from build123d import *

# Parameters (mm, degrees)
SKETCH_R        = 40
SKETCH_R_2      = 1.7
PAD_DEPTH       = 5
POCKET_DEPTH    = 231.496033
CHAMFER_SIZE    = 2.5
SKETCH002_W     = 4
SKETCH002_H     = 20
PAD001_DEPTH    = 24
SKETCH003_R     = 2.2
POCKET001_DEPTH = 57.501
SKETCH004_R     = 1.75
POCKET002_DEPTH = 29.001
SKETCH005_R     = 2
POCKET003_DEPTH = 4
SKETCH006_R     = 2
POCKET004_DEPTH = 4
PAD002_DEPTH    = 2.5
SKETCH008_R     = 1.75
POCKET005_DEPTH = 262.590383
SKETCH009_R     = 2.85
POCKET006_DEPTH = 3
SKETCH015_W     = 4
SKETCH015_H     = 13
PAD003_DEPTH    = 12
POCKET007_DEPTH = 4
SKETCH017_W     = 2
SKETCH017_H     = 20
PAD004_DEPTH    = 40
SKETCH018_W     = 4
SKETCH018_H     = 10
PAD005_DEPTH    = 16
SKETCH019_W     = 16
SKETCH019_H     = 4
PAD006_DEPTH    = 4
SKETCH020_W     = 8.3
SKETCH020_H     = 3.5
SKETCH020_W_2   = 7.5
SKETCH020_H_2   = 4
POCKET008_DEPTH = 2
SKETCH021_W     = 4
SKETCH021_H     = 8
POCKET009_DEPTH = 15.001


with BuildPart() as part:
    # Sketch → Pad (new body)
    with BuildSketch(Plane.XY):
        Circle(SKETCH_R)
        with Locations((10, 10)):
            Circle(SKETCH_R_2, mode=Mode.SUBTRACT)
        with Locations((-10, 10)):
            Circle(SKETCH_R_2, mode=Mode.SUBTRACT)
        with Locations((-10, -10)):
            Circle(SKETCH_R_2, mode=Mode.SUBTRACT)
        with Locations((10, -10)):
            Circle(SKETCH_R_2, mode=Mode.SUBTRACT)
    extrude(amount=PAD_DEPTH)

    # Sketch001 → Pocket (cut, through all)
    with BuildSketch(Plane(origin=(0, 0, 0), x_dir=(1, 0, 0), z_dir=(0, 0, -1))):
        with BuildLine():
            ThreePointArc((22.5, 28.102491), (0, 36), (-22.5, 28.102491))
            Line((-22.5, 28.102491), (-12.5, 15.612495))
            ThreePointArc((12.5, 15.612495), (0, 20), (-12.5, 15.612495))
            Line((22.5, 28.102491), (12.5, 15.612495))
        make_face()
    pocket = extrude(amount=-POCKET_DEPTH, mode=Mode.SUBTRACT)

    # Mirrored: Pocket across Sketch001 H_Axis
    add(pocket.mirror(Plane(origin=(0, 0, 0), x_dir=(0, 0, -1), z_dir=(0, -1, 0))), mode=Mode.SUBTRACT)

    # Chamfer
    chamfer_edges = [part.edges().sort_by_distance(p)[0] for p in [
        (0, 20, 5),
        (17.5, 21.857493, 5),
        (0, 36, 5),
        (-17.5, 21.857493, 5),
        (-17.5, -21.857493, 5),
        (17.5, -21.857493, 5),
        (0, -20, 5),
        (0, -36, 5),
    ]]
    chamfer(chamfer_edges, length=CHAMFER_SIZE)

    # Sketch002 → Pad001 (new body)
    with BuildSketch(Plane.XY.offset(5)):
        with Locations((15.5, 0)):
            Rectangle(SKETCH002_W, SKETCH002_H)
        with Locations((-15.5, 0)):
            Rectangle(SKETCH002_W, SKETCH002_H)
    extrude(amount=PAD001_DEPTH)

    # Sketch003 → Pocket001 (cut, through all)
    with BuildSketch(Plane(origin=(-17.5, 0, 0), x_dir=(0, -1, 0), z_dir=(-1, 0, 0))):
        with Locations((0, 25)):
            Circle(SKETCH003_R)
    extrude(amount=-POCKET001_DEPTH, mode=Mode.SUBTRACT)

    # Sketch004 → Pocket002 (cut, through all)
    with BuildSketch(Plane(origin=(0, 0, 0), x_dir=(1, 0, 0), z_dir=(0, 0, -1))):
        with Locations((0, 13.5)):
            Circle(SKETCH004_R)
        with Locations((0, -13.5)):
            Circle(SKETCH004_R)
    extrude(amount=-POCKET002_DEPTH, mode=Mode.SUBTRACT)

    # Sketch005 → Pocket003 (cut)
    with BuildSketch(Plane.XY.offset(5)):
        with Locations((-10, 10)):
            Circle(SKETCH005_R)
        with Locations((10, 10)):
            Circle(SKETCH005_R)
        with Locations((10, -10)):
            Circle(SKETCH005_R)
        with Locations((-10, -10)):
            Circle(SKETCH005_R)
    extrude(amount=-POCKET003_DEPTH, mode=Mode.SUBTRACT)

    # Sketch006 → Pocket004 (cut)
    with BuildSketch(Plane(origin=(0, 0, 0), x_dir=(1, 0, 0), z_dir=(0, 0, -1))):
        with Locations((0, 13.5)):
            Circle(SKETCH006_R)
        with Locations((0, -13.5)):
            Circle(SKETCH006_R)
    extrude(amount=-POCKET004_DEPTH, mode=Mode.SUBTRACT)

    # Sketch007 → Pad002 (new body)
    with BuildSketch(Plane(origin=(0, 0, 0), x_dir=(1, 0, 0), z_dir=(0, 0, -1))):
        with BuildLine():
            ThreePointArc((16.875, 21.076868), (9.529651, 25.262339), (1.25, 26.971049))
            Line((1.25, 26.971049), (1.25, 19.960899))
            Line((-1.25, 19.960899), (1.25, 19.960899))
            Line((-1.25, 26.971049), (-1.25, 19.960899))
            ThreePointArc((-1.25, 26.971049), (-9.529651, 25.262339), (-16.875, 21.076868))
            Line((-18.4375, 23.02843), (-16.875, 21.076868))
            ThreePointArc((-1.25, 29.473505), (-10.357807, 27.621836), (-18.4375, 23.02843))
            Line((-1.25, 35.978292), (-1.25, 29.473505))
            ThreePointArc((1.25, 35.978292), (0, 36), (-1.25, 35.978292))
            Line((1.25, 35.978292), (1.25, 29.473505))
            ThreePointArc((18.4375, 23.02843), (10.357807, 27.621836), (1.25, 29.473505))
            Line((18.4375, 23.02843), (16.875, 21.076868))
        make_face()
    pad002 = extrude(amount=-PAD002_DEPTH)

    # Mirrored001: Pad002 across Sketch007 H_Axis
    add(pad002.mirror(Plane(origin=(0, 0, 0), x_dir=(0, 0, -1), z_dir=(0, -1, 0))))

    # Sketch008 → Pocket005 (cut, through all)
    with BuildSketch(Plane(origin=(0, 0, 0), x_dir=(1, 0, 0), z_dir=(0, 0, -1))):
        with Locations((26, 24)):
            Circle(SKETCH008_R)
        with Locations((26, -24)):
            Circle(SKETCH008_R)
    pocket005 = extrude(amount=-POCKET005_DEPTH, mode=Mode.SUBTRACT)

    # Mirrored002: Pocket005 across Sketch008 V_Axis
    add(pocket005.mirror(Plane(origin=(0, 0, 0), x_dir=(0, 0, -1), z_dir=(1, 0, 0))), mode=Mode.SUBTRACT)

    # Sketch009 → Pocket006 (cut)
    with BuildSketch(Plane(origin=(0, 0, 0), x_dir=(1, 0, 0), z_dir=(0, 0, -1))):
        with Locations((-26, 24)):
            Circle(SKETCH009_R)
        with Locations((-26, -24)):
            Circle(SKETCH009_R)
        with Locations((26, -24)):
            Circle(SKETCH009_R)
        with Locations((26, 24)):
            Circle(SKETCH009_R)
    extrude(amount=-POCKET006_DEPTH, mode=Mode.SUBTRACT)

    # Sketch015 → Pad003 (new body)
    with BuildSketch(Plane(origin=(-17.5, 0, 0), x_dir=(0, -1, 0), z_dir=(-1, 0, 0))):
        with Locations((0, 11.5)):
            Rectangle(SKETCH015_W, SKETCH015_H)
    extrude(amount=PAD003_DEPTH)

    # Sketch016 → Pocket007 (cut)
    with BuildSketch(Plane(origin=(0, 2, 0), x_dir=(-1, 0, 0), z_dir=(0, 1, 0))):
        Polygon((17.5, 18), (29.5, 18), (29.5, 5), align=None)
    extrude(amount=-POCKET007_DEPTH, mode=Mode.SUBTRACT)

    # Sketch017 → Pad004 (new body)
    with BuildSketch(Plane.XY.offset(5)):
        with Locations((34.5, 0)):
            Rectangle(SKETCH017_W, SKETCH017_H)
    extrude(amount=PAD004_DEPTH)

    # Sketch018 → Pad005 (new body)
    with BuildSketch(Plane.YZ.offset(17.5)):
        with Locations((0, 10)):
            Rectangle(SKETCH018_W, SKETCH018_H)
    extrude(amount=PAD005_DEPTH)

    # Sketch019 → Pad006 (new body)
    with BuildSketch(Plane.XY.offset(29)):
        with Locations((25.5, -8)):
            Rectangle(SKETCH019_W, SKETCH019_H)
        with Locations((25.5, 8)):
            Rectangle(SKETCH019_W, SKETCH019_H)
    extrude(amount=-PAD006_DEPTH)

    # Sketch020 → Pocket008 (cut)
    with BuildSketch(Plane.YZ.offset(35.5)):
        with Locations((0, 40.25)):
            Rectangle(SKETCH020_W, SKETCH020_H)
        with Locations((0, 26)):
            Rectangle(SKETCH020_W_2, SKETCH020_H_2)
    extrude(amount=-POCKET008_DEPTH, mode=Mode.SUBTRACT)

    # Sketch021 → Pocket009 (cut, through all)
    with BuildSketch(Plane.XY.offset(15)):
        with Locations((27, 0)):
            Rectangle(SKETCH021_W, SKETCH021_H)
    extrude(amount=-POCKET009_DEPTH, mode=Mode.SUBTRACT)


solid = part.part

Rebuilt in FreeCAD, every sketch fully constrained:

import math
import FreeCAD as App
import Part
import Sketcher
from FreeCAD import Vector
Q = App.Units.Quantity


def edges_at(feature, points):
    """Names of the edges that pass closest to the given points."""
    edges = feature.Shape.Edges
    near = lambda p: min(range(len(edges)), key=lambda i: edges[i].distToShape(Part.Vertex(*p))[0])
    return sorted({f"Edge{near(p) + 1}" for p in points})

doc = App.newDocument("Part")
body = doc.addObject("PartDesign::Body", "Body")

sketch1 = body.newObject("Sketcher::SketchObject", "Sketch")
sketch1.AttachmentSupport = (doc.getObject("XY_Plane"), [""])
sketch1.MapMode = "FlatFace"
sketch1.addGeometry([
    Part.Circle(Vector(0, 0, 0), Vector(0, 0, 1), 40),
    Part.Circle(Vector(-10, -10, 0), Vector(0, 0, 1), 1.7),
    Part.Circle(Vector(10, -10, 0), Vector(0, 0, 1), 1.7),
    Part.Circle(Vector(-10, 10, 0), Vector(0, 0, 1), 1.7),
    Part.Circle(Vector(10, 10, 0), Vector(0, 0, 1), 1.7),
], False)
sketch1.addConstraint([
    Sketcher.Constraint("Coincident", 0, 3, -1, 1),
    Sketcher.Constraint("Equal", 1, 2),
    Sketcher.Constraint("Equal", 2, 3),
    Sketcher.Constraint("Equal", 3, 4),
    Sketcher.Constraint("Symmetric", 2, 3, 3, 3, -1, 1),
    Sketcher.Constraint("Symmetric", 1, 3, 4, 3, -1, 1),
    Sketcher.Constraint("Symmetric", 1, 3, 2, 3, -2),
    Sketcher.Constraint("Diameter", 0, Q("80 mm")),
    Sketcher.Constraint("Diameter", 1, Q("3.4 mm")),
    Sketcher.Constraint("DistanceX", 1, 3, -1, 1, Q("10 mm")),
    Sketcher.Constraint("DistanceY", 1, 3, -1, 1, Q("10 mm")),
])
pad1 = body.newObject("PartDesign::Pad", "Pad")
pad1.Profile = sketch1
pad1.Length = 5

sketch2 = body.newObject("Sketcher::SketchObject", "Sketch001")
sketch2.AttachmentSupport = (doc.getObject("XY_Plane"), [""])
sketch2.MapMode = "FlatFace"
sketch2.addGeometry([
    Part.ArcOfCircle(Part.Circle(Vector(0, 0, 0), Vector(0, 0, 1), 36), math.radians(-129), math.radians(-51)),
    Part.LineSegment(Vector(-22, -28, 0), Vector(-12, -16, 0)),
    Part.ArcOfCircle(Part.Circle(Vector(0, 0, 0), Vector(0, 0, 1), 20), math.radians(-129), math.radians(-51)),
    Part.LineSegment(Vector(12, -16, 0), Vector(22, -28, 0)),
], False)
sketch2.addConstraint([
    Sketcher.Constraint("Coincident", 0, 1, 1, 1),
    Sketcher.Constraint("Coincident", 1, 2, 2, 1),
    Sketcher.Constraint("Coincident", 2, 2, 3, 1),
    Sketcher.Constraint("Coincident", 3, 2, 0, 2),
    Sketcher.Constraint("Coincident", 0, 3, -1, 1),
    Sketcher.Constraint("Coincident", 2, 3, -1, 1),
    Sketcher.Constraint("Horizontal", 1, 2, 2, 2),
    Sketcher.Constraint("Horizontal", 0, 1, 3, 2),
    Sketcher.Constraint("Radius", 0, Q("36 mm")),
    Sketcher.Constraint("Radius", 2, Q("20 mm")),
    Sketcher.Constraint("DistanceX", 0, 1, 1, 2, Q("10 mm")),
    Sketcher.Constraint("DistanceX", 1, 2, 2, 2, Q("25 mm")),
])
pocket1 = body.newObject("PartDesign::Pocket", "Pocket")
pocket1.Profile = sketch2
pocket1.Type = "ThroughAll"
pocket1.Reversed = True
doc.recompute()

mirrored = body.newObject("PartDesign::Mirrored", "Mirrored")
mirrored.Originals = [pocket1]
mirrored.MirrorPlane = (doc.getObject("XZ_Plane"), [""])
body.Tip = mirrored
doc.recompute()

chamfer = body.newObject("PartDesign::Chamfer", "Chamfer")
chamfer.Base = (mirrored, edges_at(mirrored, [
    (0, 20, 5),
    (17.5, 21.857, 5),
    (0, 36, 5),
    (-17.5, 21.857, 5),
    (-17.5, -21.857, 5),
    (17.5, -21.857, 5),
    (0, -20, 5),
    (0, -36, 5),
]))
chamfer.Size = 2.5

sketch3 = body.newObject("Sketcher::SketchObject", "Sketch002")
sketch3.AttachmentSupport = (doc.getObject("XY_Plane"), [""])
sketch3.MapMode = "FlatFace"
sketch3.AttachmentOffset = App.Placement(Vector(0, 0, 5), App.Rotation())
sketch3.addGeometry([
    Part.LineSegment(Vector(13.5, 10, 0), Vector(13.5, -10, 0)),
    Part.LineSegment(Vector(13.5, -10, 0), Vector(17.5, -10, 0)),
    Part.LineSegment(Vector(17.5, -10, 0), Vector(17.5, 10, 0)),
    Part.LineSegment(Vector(17.5, 10, 0), Vector(13.5, 10, 0)),
    Part.LineSegment(Vector(-17.5, 10, 0), Vector(-17.5, -10, 0)),
    Part.LineSegment(Vector(-17.5, -10, 0), Vector(-13.5, -10, 0)),
    Part.LineSegment(Vector(-13.5, -10, 0), Vector(-13.5, 10, 0)),
    Part.LineSegment(Vector(-13.5, 10, 0), Vector(-17.5, 10, 0)),
], False)
sketch3.addConstraint([
    Sketcher.Constraint("Coincident", 0, 2, 1, 1),
    Sketcher.Constraint("Coincident", 1, 2, 2, 1),
    Sketcher.Constraint("Coincident", 2, 2, 3, 1),
    Sketcher.Constraint("Coincident", 3, 2, 0, 1),
    Sketcher.Constraint("Coincident", 4, 2, 5, 1),
    Sketcher.Constraint("Coincident", 5, 2, 6, 1),
    Sketcher.Constraint("Coincident", 6, 2, 7, 1),
    Sketcher.Constraint("Coincident", 7, 2, 4, 1),
    Sketcher.Constraint("Vertical", 0),
    Sketcher.Constraint("Horizontal", 1),
    Sketcher.Constraint("Vertical", 2),
    Sketcher.Constraint("Horizontal", 3),
    Sketcher.Constraint("Vertical", 4),
    Sketcher.Constraint("Horizontal", 5),
    Sketcher.Constraint("Vertical", 6),
    Sketcher.Constraint("Horizontal", 7),
    Sketcher.Constraint("Symmetric", 2, 2, 4, 2, -1, 1),
    Sketcher.Constraint("Symmetric", 0, 2, 6, 2, -1, 1),
    Sketcher.Constraint("Horizontal", 1, 2, 4, 2),
    Sketcher.Constraint("DistanceX", 1, 1, 1, 2, Q("4 mm")),
    Sketcher.Constraint("DistanceY", 0, 2, 0, 1, Q("20 mm")),
    Sketcher.Constraint("DistanceX", 4, 2, 0, 2, Q("31 mm")),
])
pad2 = body.newObject("PartDesign::Pad", "Pad001")
pad2.Profile = sketch3
pad2.Length = 24

sketch4 = body.newObject("Sketcher::SketchObject", "Sketch003")
sketch4.AttachmentSupport = (doc.getObject("YZ_Plane"), [""])
sketch4.MapMode = "FlatFace"
sketch4.AttachmentOffset = App.Placement(Vector(0, 0, -17.5), App.Rotation())
sketch4.addGeometry(Part.Circle(Vector(0, 25, 0), Vector(0, 0, 1), 2.2), False)
sketch4.addConstraint([
    Sketcher.Constraint("PointOnObject", 0, 3, -2),
    Sketcher.Constraint("Diameter", 0, Q("4.4 mm")),
    Sketcher.Constraint("DistanceY", -1, 1, 0, 3, Q("25 mm")),
])
pocket2 = body.newObject("PartDesign::Pocket", "Pocket001")
pocket2.Profile = sketch4
pocket2.Type = "ThroughAll"
pocket2.Reversed = True

sketch5 = body.newObject("Sketcher::SketchObject", "Sketch004")
sketch5.AttachmentSupport = (doc.getObject("XY_Plane"), [""])
sketch5.MapMode = "FlatFace"
sketch5.addGeometry([
    Part.Circle(Vector(0, -13.5, 0), Vector(0, 0, 1), 1.8),
    Part.Circle(Vector(0, 13.5, 0), Vector(0, 0, 1), 1.8),
], False)
sketch5.addConstraint([
    Sketcher.Constraint("Equal", 0, 1),
    Sketcher.Constraint("Symmetric", 0, 3, 1, 3, -1, 1),
    Sketcher.Constraint("PointOnObject", 0, 3, -2),
    Sketcher.Constraint("Diameter", 0, Q("3.5 mm")),
    Sketcher.Constraint("DistanceY", 0, 3, 1, 3, Q("27 mm")),
])
pocket3 = body.newObject("PartDesign::Pocket", "Pocket002")
pocket3.Profile = sketch5
pocket3.Type = "ThroughAll"
pocket3.Reversed = True

sketch6 = body.newObject("Sketcher::SketchObject", "Sketch005")
sketch6.AttachmentSupport = (doc.getObject("XY_Plane"), [""])
sketch6.MapMode = "FlatFace"
sketch6.AttachmentOffset = App.Placement(Vector(0, 0, 5), App.Rotation())
sketch6.addGeometry([
    Part.Circle(Vector(-10, 10, 0), Vector(0, 0, 1), 2),
    Part.Circle(Vector(10, 10, 0), Vector(0, 0, 1), 2),
    Part.Circle(Vector(10, -10, 0), Vector(0, 0, 1), 2),
    Part.Circle(Vector(-10, -10, 0), Vector(0, 0, 1), 2),
], False)
sketch6.addConstraint([
    Sketcher.Constraint("Equal", 0, 1),
    Sketcher.Constraint("Equal", 1, 2),
    Sketcher.Constraint("Equal", 2, 3),
    Sketcher.Constraint("Symmetric", 0, 3, 2, 3, -1, 1),
    Sketcher.Constraint("Symmetric", 1, 3, 3, 3, -1, 1),
    Sketcher.Constraint("Symmetric", 0, 3, 1, 3, -2),
    Sketcher.Constraint("Diameter", 0, Q("4 mm")),
    Sketcher.Constraint("DistanceX", 0, 3, -1, 1, Q("10 mm")),
    Sketcher.Constraint("DistanceY", -1, 1, 0, 3, Q("10 mm")),
])
pocket4 = body.newObject("PartDesign::Pocket", "Pocket003")
pocket4.Profile = sketch6
pocket4.Length = 4

sketch7 = body.newObject("Sketcher::SketchObject", "Sketch006")
sketch7.AttachmentSupport = (doc.getObject("XY_Plane"), [""])
sketch7.MapMode = "FlatFace"
sketch7.addGeometry([
    Part.Circle(Vector(0, -13.5, 0), Vector(0, 0, 1), 2),
    Part.Circle(Vector(0, 13.5, 0), Vector(0, 0, 1), 2),
], False)
sketch7.addConstraint([
    Sketcher.Constraint("Equal", 0, 1),
    Sketcher.Constraint("Symmetric", 0, 3, 1, 3, -1, 1),
    Sketcher.Constraint("PointOnObject", 0, 3, -2),
    Sketcher.Constraint("Diameter", 0, Q("4 mm")),
    Sketcher.Constraint("DistanceY", 0, 3, 1, 3, Q("27 mm")),
])
pocket5 = body.newObject("PartDesign::Pocket", "Pocket004")
pocket5.Profile = sketch7
pocket5.Length = 4
pocket5.Reversed = True

sketch8 = body.newObject("Sketcher::SketchObject", "Sketch007")
sketch8.AttachmentSupport = (doc.getObject("XY_Plane"), [""])
sketch8.MapMode = "FlatFace"
sketch8.addGeometry([
    Part.ArcOfCircle(Part.Circle(Vector(0, 0, 0), Vector(0, 0, 1), 27), math.radians(-87), math.radians(-51)),
    Part.LineSegment(Vector(16.9, -21.1, 0), Vector(18.4, -23, 0)),
    Part.ArcOfCircle(Part.Circle(Vector(0, 0, 0), Vector(0, 0, 1), 29.5), math.radians(-88), math.radians(-51)),
    Part.LineSegment(Vector(1.2, -29.5, 0), Vector(1.2, -36, 0)),
    Part.ArcOfCircle(Part.Circle(Vector(0, 0, 0), Vector(0, 0, 1), 36), math.radians(-91.99), math.radians(-88.01)),
    Part.LineSegment(Vector(-1.2, -36, 0), Vector(-1.2, -29.5, 0)),
    Part.ArcOfCircle(Part.Circle(Vector(0, 0, 0), Vector(0, 0, 1), 29.5), math.radians(-129), math.radians(-92)),
    Part.LineSegment(Vector(-18.4, -23, 0), Vector(-16.9, -21.1, 0)),
    Part.ArcOfCircle(Part.Circle(Vector(0, 0, 0), Vector(0, 0, 1), 27), math.radians(-129), math.radians(-93)),
    Part.LineSegment(Vector(-1.2, -27, 0), Vector(-1.2, -20, 0)),
    Part.LineSegment(Vector(-1.2, -20, 0), Vector(1.2, -20, 0)),
    Part.LineSegment(Vector(1.2, -20, 0), Vector(1.2, -27, 0)),
], False)
sketch8.addConstraint([
    Sketcher.Constraint("Coincident", 0, 2, 1, 1),
    Sketcher.Constraint("Coincident", 1, 2, 2, 2),
    Sketcher.Constraint("Coincident", 2, 1, 3, 1),
    Sketcher.Constraint("Coincident", 3, 2, 4, 2),
    Sketcher.Constraint("Coincident", 4, 1, 5, 1),
    Sketcher.Constraint("Coincident", 5, 2, 6, 2),
    Sketcher.Constraint("Coincident", 6, 1, 7, 1),
    Sketcher.Constraint("Coincident", 7, 2, 8, 1),
    Sketcher.Constraint("Coincident", 8, 2, 9, 1),
    Sketcher.Constraint("Coincident", 9, 2, 10, 1),
    Sketcher.Constraint("Coincident", 10, 2, 11, 1),
    Sketcher.Constraint("Coincident", 11, 2, 0, 1),
    Sketcher.Constraint("Vertical", 3),
    Sketcher.Constraint("Vertical", 5),
    Sketcher.Constraint("Vertical", 9),
    Sketcher.Constraint("Horizontal", 10),
    Sketcher.Constraint("Vertical", 11),
    Sketcher.Constraint("Coincident", 2, 3, -1, 1),
    Sketcher.Constraint("Coincident", 6, 3, -1, 1),
    Sketcher.Constraint("Coincident", 8, 3, 0, 3),
    Sketcher.Constraint("Equal", 2, 6),
    Sketcher.Constraint("Equal", 0, 8),
    Sketcher.Constraint("Symmetric", 3, 2, 4, 1, -2),
    Sketcher.Constraint("Symmetric", 0, 2, 7, 2, -2),
    Sketcher.Constraint("Horizontal", 1, 2, 6, 1),
    Sketcher.Constraint("Horizontal", 8, 2, 11, 2),
    Sketcher.Constraint("Vertical", 5, 2, 8, 2),
    Sketcher.Constraint("Radius", 2, Q("29.500002 mm")),
    Sketcher.Constraint("DistanceX", 10, 1, 10, 2, Q("2.5 mm")),
    Sketcher.Constraint("Distance", 1, Q("2.5 mm")),
    Sketcher.Constraint("Radius", 4, Q("35.99989 mm")),
    Sketcher.Constraint("DistanceX", -1, 1, 0, 2, Q("16.875 mm")),
    Sketcher.Constraint("Radius", 0, Q("26.999988 mm")),
    Sketcher.Constraint("DistanceY", 9, 1, 9, 2, Q("7.01015 mm")),
    Sketcher.Constraint("DistanceX", -1, 1, 1, 2, Q("18.4375 mm")),
    Sketcher.Constraint("DistanceY", 3, 2, 3, 1, Q("6.504787 mm")),
])
pad3 = body.newObject("PartDesign::Pad", "Pad002")
pad3.Profile = sketch8
pad3.Length = 2.5
doc.recompute()

mirrored2 = body.newObject("PartDesign::Mirrored", "Mirrored001")
mirrored2.Originals = [pad3]
mirrored2.MirrorPlane = (doc.getObject("XZ_Plane"), [""])
body.Tip = mirrored2

sketch9 = body.newObject("Sketcher::SketchObject", "Sketch008")
sketch9.AttachmentSupport = (doc.getObject("XY_Plane"), [""])
sketch9.MapMode = "FlatFace"
sketch9.addGeometry([
    Part.Circle(Vector(26, -24, 0), Vector(0, 0, 1), 1.8),
    Part.Circle(Vector(26, 24, 0), Vector(0, 0, 1), 1.8),
], False)
sketch9.addConstraint([
    Sketcher.Constraint("Equal", 0, 1),
    Sketcher.Constraint("Symmetric", 0, 3, 1, 3, -1),
    Sketcher.Constraint("Diameter", 0, Q("3.5 mm")),
    Sketcher.Constraint("DistanceX", -1, 1, 0, 3, Q("26 mm")),
    Sketcher.Constraint("DistanceY", 0, 3, -1, 1, Q("24 mm")),
])
pocket6 = body.newObject("PartDesign::Pocket", "Pocket005")
pocket6.Profile = sketch9
pocket6.Type = "ThroughAll"
pocket6.Reversed = True
doc.recompute()

mirrored3 = body.newObject("PartDesign::Mirrored", "Mirrored002")
mirrored3.Originals = [pocket6]
mirrored3.MirrorPlane = (doc.getObject("YZ_Plane"), [""])
body.Tip = mirrored3

sketch10 = body.newObject("Sketcher::SketchObject", "Sketch009")
sketch10.AttachmentSupport = (doc.getObject("XY_Plane"), [""])
sketch10.MapMode = "FlatFace"
sketch10.addGeometry([
    Part.Circle(Vector(-26, -24, 0), Vector(0, 0, 1), 2.9),
    Part.Circle(Vector(-26, 24, 0), Vector(0, 0, 1), 2.9),
    Part.Circle(Vector(26, 24, 0), Vector(0, 0, 1), 2.9),
    Part.Circle(Vector(26, -24, 0), Vector(0, 0, 1), 2.9),
], False)
sketch10.addConstraint([
    Sketcher.Constraint("Equal", 0, 1),
    Sketcher.Constraint("Equal", 1, 2),
    Sketcher.Constraint("Equal", 2, 3),
    Sketcher.Constraint("Symmetric", 0, 3, 2, 3, -1, 1),
    Sketcher.Constraint("Symmetric", 1, 3, 3, 3, -1, 1),
    Sketcher.Constraint("Symmetric", 1, 3, 2, 3, -2),
    Sketcher.Constraint("Diameter", 0, Q("5.7 mm")),
    Sketcher.Constraint("DistanceX", 0, 3, -1, 1, Q("26 mm")),
    Sketcher.Constraint("DistanceY", 0, 3, -1, 1, Q("24 mm")),
])
pocket7 = body.newObject("PartDesign::Pocket", "Pocket006")
pocket7.Profile = sketch10
pocket7.Length = 3
pocket7.Reversed = True

sketch11 = body.newObject("Sketcher::SketchObject", "Sketch010")
sketch11.AttachmentSupport = (doc.getObject("YZ_Plane"), [""])
sketch11.MapMode = "FlatFace"
sketch11.AttachmentOffset = App.Placement(Vector(0, 0, -17.5), App.Rotation())
sketch11.addGeometry([
    Part.LineSegment(Vector(2, 18, 0), Vector(2, 5, 0)),
    Part.LineSegment(Vector(2, 5, 0), Vector(-2, 5, 0)),
    Part.LineSegment(Vector(-2, 5, 0), Vector(-2, 18, 0)),
    Part.LineSegment(Vector(-2, 18, 0), Vector(2, 18, 0)),
], False)
sketch11.addConstraint([
    Sketcher.Constraint("Coincident", 0, 2, 1, 1),
    Sketcher.Constraint("Coincident", 1, 2, 2, 1),
    Sketcher.Constraint("Coincident", 2, 2, 3, 1),
    Sketcher.Constraint("Coincident", 3, 2, 0, 1),
    Sketcher.Constraint("Vertical", 0),
    Sketcher.Constraint("Horizontal", 1),
    Sketcher.Constraint("Vertical", 2),
    Sketcher.Constraint("Horizontal", 3),
    Sketcher.Constraint("DistanceX", 1, 2, 1, 1, Q("4 mm")),
    Sketcher.Constraint("DistanceY", 0, 2, 0, 1, Q("13 mm")),
    Sketcher.Constraint("DistanceX", -1, 1, 0, 2, Q("2 mm")),
    Sketcher.Constraint("DistanceY", -1, 1, 0, 2, Q("5 mm")),
])
pad4 = body.newObject("PartDesign::Pad", "Pad003")
pad4.Profile = sketch11
pad4.Length = 12
pad4.Reversed = True

sketch12 = body.newObject("Sketcher::SketchObject", "Sketch011")
sketch12.AttachmentSupport = (doc.getObject("XZ_Plane"), [""])
sketch12.MapMode = "FlatFace"
sketch12.AttachmentOffset = App.Placement(Vector(0, 0, -2), App.Rotation())
sketch12.addGeometry([
    Part.LineSegment(Vector(-30, 18, 0), Vector(-18, 18, 0)),
    Part.LineSegment(Vector(-18, 18, 0), Vector(-30, 5, 0)),
    Part.LineSegment(Vector(-30, 5, 0), Vector(-30, 18, 0)),
], False)
sketch12.addConstraint([
    Sketcher.Constraint("Coincident", 0, 2, 1, 1),
    Sketcher.Constraint("Coincident", 1, 2, 2, 1),
    Sketcher.Constraint("Coincident", 2, 2, 0, 1),
    Sketcher.Constraint("Horizontal", 0),
    Sketcher.Constraint("Vertical", 2),
    Sketcher.Constraint("DistanceX", 0, 1, 0, 2, Q("12 mm")),
    Sketcher.Constraint("DistanceY", 2, 1, 2, 2, Q("13 mm")),
    Sketcher.Constraint("DistanceY", -1, 1, 0, 2, Q("18 mm")),
    Sketcher.Constraint("DistanceX", 0, 2, -1, 1, Q("17.5 mm")),
])
pocket8 = body.newObject("PartDesign::Pocket", "Pocket007")
pocket8.Profile = sketch12
pocket8.Length = 4
pocket8.Reversed = True

sketch13 = body.newObject("Sketcher::SketchObject", "Sketch012")
sketch13.AttachmentSupport = (doc.getObject("XY_Plane"), [""])
sketch13.MapMode = "FlatFace"
sketch13.AttachmentOffset = App.Placement(Vector(0, 0, 5), App.Rotation())
sketch13.addGeometry([
    Part.LineSegment(Vector(33.5, 10, 0), Vector(33.5, -10, 0)),
    Part.LineSegment(Vector(33.5, -10, 0), Vector(35.5, -10, 0)),
    Part.LineSegment(Vector(35.5, -10, 0), Vector(35.5, 10, 0)),
    Part.LineSegment(Vector(35.5, 10, 0), Vector(33.5, 10, 0)),
], False)
sketch13.addConstraint([
    Sketcher.Constraint("Coincident", 0, 2, 1, 1),
    Sketcher.Constraint("Coincident", 1, 2, 2, 1),
    Sketcher.Constraint("Coincident", 2, 2, 3, 1),
    Sketcher.Constraint("Coincident", 3, 2, 0, 1),
    Sketcher.Constraint("Vertical", 0),
    Sketcher.Constraint("Horizontal", 1),
    Sketcher.Constraint("Vertical", 2),
    Sketcher.Constraint("Horizontal", 3),
    Sketcher.Constraint("DistanceX", 1, 1, 1, 2, Q("2 mm")),
    Sketcher.Constraint("DistanceY", 0, 2, 0, 1, Q("20 mm")),
    Sketcher.Constraint("DistanceY", 0, 2, -1, 1, Q("10 mm")),
    Sketcher.Constraint("DistanceX", -1, 1, 0, 2, Q("33.5 mm")),
])
pad5 = body.newObject("PartDesign::Pad", "Pad004")
pad5.Profile = sketch13
pad5.Length = 40

sketch14 = body.newObject("Sketcher::SketchObject", "Sketch013")
sketch14.AttachmentSupport = (doc.getObject("YZ_Plane"), [""])
sketch14.MapMode = "FlatFace"
sketch14.AttachmentOffset = App.Placement(Vector(0, 0, 17.5), App.Rotation())
sketch14.addGeometry([
    Part.LineSegment(Vector(-2, 15, 0), Vector(-2, 5, 0)),
    Part.LineSegment(Vector(-2, 5, 0), Vector(2, 5, 0)),
    Part.LineSegment(Vector(2, 5, 0), Vector(2, 15, 0)),
    Part.LineSegment(Vector(2, 15, 0), Vector(-2, 15, 0)),
], False)
sketch14.addConstraint([
    Sketcher.Constraint("Coincident", 0, 2, 1, 1),
    Sketcher.Constraint("Coincident", 1, 2, 2, 1),
    Sketcher.Constraint("Coincident", 2, 2, 3, 1),
    Sketcher.Constraint("Coincident", 3, 2, 0, 1),
    Sketcher.Constraint("Vertical", 0),
    Sketcher.Constraint("Horizontal", 1),
    Sketcher.Constraint("Vertical", 2),
    Sketcher.Constraint("Horizontal", 3),
    Sketcher.Constraint("DistanceX", 1, 1, 1, 2, Q("4 mm")),
    Sketcher.Constraint("DistanceY", 0, 2, 0, 1, Q("10 mm")),
    Sketcher.Constraint("DistanceX", 0, 2, -1, 1, Q("2 mm")),
    Sketcher.Constraint("DistanceY", -1, 1, 0, 2, Q("5 mm")),
])
pad6 = body.newObject("PartDesign::Pad", "Pad005")
pad6.Profile = sketch14
pad6.Length = 16

sketch15 = body.newObject("Sketcher::SketchObject", "Sketch014")
sketch15.AttachmentSupport = (doc.getObject("XY_Plane"), [""])
sketch15.MapMode = "FlatFace"
sketch15.AttachmentOffset = App.Placement(Vector(0, 0, 29), App.Rotation())
sketch15.addGeometry([
    Part.LineSegment(Vector(17.5, -6, 0), Vector(17.5, -10, 0)),
    Part.LineSegment(Vector(17.5, -10, 0), Vector(33.5, -10, 0)),
    Part.LineSegment(Vector(33.5, -10, 0), Vector(33.5, -6, 0)),
    Part.LineSegment(Vector(33.5, -6, 0), Vector(17.5, -6, 0)),
    Part.LineSegment(Vector(17.5, 10, 0), Vector(17.5, 6, 0)),
    Part.LineSegment(Vector(17.5, 6, 0), Vector(33.5, 6, 0)),
    Part.LineSegment(Vector(33.5, 6, 0), Vector(33.5, 10, 0)),
    Part.LineSegment(Vector(33.5, 10, 0), Vector(17.5, 10, 0)),
], False)
sketch15.addConstraint([
    Sketcher.Constraint("Coincident", 0, 2, 1, 1),
    Sketcher.Constraint("Coincident", 1, 2, 2, 1),
    Sketcher.Constraint("Coincident", 2, 2, 3, 1),
    Sketcher.Constraint("Coincident", 3, 2, 0, 1),
    Sketcher.Constraint("Coincident", 4, 2, 5, 1),
    Sketcher.Constraint("Coincident", 5, 2, 6, 1),
    Sketcher.Constraint("Coincident", 6, 2, 7, 1),
    Sketcher.Constraint("Coincident", 7, 2, 4, 1),
    Sketcher.Constraint("Vertical", 0),
    Sketcher.Constraint("Horizontal", 1),
    Sketcher.Constraint("Vertical", 2),
    Sketcher.Constraint("Horizontal", 3),
    Sketcher.Constraint("Vertical", 4),
    Sketcher.Constraint("Horizontal", 5),
    Sketcher.Constraint("Vertical", 6),
    Sketcher.Constraint("Horizontal", 7),
    Sketcher.Constraint("Symmetric", 3, 2, 4, 2, -1),
    Sketcher.Constraint("Symmetric", 1, 2, 6, 2, -1),
    Sketcher.Constraint("DistanceX", 1, 1, 1, 2, Q("16 mm")),
    Sketcher.Constraint("DistanceY", 0, 2, 0, 1, Q("4 mm")),
    Sketcher.Constraint("DistanceY", 0, 2, -1, 1, Q("10 mm")),
    Sketcher.Constraint("DistanceX", -1, 1, 0, 2, Q("17.5 mm")),
])
pad7 = body.newObject("PartDesign::Pad", "Pad006")
pad7.Profile = sketch15
pad7.Length = 4
pad7.Reversed = True

sketch16 = body.newObject("Sketcher::SketchObject", "Sketch015")
sketch16.AttachmentSupport = (doc.getObject("YZ_Plane"), [""])
sketch16.MapMode = "FlatFace"
sketch16.AttachmentOffset = App.Placement(Vector(0, 0, 35.5), App.Rotation())
sketch16.addGeometry([
    Part.LineSegment(Vector(-4.2, 42, 0), Vector(-4.2, 38.5, 0)),
    Part.LineSegment(Vector(-4.2, 38.5, 0), Vector(4.2, 38.5, 0)),
    Part.LineSegment(Vector(4.2, 38.5, 0), Vector(4.2, 42, 0)),
    Part.LineSegment(Vector(4.2, 42, 0), Vector(-4.2, 42, 0)),
    Part.LineSegment(Vector(-3.8, 28, 0), Vector(-3.8, 24, 0)),
    Part.LineSegment(Vector(-3.8, 24, 0), Vector(3.8, 24, 0)),
    Part.LineSegment(Vector(3.8, 24, 0), Vector(3.8, 28, 0)),
    Part.LineSegment(Vector(3.8, 28, 0), Vector(-3.8, 28, 0)),
], False)
sketch16.addConstraint([
    Sketcher.Constraint("Coincident", 0, 2, 1, 1),
    Sketcher.Constraint("Coincident", 1, 2, 2, 1),
    Sketcher.Constraint("Coincident", 2, 2, 3, 1),
    Sketcher.Constraint("Coincident", 3, 2, 0, 1),
    Sketcher.Constraint("Coincident", 4, 2, 5, 1),
    Sketcher.Constraint("Coincident", 5, 2, 6, 1),
    Sketcher.Constraint("Coincident", 6, 2, 7, 1),
    Sketcher.Constraint("Coincident", 7, 2, 4, 1),
    Sketcher.Constraint("Vertical", 0),
    Sketcher.Constraint("Horizontal", 1),
    Sketcher.Constraint("Vertical", 2),
    Sketcher.Constraint("Horizontal", 3),
    Sketcher.Constraint("Vertical", 4),
    Sketcher.Constraint("Horizontal", 5),
    Sketcher.Constraint("Vertical", 6),
    Sketcher.Constraint("Horizontal", 7),
    Sketcher.Constraint("DistanceY", 4, 2, 4, 1, Q("4 mm")),
    Sketcher.Constraint("DistanceX", 1, 1, 1, 2, Q("8.3 mm")),
    Sketcher.Constraint("DistanceX", 5, 1, 5, 2, Q("7.5 mm")),
    Sketcher.Constraint("DistanceY", 0, 2, 0, 1, Q("3.5 mm")),
    Sketcher.Constraint("DistanceY", -1, 1, 2, 2, Q("42 mm")),
    Sketcher.Constraint("DistanceY", -1, 1, 4, 2, Q("24 mm")),
    Sketcher.Constraint("DistanceX", 0, 2, 4, 2, Q("0.4 mm")),
    Sketcher.Constraint("DistanceX", 0, 2, -1, 1, Q("4.15 mm")),
])
pocket9 = body.newObject("PartDesign::Pocket", "Pocket008")
pocket9.Profile = sketch16
pocket9.Length = 2

sketch17 = body.newObject("Sketcher::SketchObject", "Sketch016")
sketch17.AttachmentSupport = (doc.getObject("XY_Plane"), [""])
sketch17.MapMode = "FlatFace"
sketch17.AttachmentOffset = App.Placement(Vector(0, 0, 15), App.Rotation())
sketch17.addGeometry([
    Part.LineSegment(Vector(25, 4, 0), Vector(25, -4, 0)),
    Part.LineSegment(Vector(25, -4, 0), Vector(29, -4, 0)),
    Part.LineSegment(Vector(29, -4, 0), Vector(29, 4, 0)),
    Part.LineSegment(Vector(29, 4, 0), Vector(25, 4, 0)),
], False)
sketch17.addConstraint([
    Sketcher.Constraint("Coincident", 0, 2, 1, 1),
    Sketcher.Constraint("Coincident", 1, 2, 2, 1),
    Sketcher.Constraint("Coincident", 2, 2, 3, 1),
    Sketcher.Constraint("Coincident", 3, 2, 0, 1),
    Sketcher.Constraint("Vertical", 0),
    Sketcher.Constraint("Horizontal", 1),
    Sketcher.Constraint("Vertical", 2),
    Sketcher.Constraint("Horizontal", 3),
    Sketcher.Constraint("DistanceX", 1, 1, 1, 2, Q("4 mm")),
    Sketcher.Constraint("DistanceY", 0, 2, 0, 1, Q("8 mm")),
    Sketcher.Constraint("DistanceX", -1, 1, 0, 2, Q("25 mm")),
    Sketcher.Constraint("DistanceY", 0, 2, -1, 1, Q("4 mm")),
])
pocket10 = body.newObject("PartDesign::Pocket", "Pocket009")
pocket10.Profile = sketch17
pocket10.Type = "ThroughAll"

doc.recompute()
